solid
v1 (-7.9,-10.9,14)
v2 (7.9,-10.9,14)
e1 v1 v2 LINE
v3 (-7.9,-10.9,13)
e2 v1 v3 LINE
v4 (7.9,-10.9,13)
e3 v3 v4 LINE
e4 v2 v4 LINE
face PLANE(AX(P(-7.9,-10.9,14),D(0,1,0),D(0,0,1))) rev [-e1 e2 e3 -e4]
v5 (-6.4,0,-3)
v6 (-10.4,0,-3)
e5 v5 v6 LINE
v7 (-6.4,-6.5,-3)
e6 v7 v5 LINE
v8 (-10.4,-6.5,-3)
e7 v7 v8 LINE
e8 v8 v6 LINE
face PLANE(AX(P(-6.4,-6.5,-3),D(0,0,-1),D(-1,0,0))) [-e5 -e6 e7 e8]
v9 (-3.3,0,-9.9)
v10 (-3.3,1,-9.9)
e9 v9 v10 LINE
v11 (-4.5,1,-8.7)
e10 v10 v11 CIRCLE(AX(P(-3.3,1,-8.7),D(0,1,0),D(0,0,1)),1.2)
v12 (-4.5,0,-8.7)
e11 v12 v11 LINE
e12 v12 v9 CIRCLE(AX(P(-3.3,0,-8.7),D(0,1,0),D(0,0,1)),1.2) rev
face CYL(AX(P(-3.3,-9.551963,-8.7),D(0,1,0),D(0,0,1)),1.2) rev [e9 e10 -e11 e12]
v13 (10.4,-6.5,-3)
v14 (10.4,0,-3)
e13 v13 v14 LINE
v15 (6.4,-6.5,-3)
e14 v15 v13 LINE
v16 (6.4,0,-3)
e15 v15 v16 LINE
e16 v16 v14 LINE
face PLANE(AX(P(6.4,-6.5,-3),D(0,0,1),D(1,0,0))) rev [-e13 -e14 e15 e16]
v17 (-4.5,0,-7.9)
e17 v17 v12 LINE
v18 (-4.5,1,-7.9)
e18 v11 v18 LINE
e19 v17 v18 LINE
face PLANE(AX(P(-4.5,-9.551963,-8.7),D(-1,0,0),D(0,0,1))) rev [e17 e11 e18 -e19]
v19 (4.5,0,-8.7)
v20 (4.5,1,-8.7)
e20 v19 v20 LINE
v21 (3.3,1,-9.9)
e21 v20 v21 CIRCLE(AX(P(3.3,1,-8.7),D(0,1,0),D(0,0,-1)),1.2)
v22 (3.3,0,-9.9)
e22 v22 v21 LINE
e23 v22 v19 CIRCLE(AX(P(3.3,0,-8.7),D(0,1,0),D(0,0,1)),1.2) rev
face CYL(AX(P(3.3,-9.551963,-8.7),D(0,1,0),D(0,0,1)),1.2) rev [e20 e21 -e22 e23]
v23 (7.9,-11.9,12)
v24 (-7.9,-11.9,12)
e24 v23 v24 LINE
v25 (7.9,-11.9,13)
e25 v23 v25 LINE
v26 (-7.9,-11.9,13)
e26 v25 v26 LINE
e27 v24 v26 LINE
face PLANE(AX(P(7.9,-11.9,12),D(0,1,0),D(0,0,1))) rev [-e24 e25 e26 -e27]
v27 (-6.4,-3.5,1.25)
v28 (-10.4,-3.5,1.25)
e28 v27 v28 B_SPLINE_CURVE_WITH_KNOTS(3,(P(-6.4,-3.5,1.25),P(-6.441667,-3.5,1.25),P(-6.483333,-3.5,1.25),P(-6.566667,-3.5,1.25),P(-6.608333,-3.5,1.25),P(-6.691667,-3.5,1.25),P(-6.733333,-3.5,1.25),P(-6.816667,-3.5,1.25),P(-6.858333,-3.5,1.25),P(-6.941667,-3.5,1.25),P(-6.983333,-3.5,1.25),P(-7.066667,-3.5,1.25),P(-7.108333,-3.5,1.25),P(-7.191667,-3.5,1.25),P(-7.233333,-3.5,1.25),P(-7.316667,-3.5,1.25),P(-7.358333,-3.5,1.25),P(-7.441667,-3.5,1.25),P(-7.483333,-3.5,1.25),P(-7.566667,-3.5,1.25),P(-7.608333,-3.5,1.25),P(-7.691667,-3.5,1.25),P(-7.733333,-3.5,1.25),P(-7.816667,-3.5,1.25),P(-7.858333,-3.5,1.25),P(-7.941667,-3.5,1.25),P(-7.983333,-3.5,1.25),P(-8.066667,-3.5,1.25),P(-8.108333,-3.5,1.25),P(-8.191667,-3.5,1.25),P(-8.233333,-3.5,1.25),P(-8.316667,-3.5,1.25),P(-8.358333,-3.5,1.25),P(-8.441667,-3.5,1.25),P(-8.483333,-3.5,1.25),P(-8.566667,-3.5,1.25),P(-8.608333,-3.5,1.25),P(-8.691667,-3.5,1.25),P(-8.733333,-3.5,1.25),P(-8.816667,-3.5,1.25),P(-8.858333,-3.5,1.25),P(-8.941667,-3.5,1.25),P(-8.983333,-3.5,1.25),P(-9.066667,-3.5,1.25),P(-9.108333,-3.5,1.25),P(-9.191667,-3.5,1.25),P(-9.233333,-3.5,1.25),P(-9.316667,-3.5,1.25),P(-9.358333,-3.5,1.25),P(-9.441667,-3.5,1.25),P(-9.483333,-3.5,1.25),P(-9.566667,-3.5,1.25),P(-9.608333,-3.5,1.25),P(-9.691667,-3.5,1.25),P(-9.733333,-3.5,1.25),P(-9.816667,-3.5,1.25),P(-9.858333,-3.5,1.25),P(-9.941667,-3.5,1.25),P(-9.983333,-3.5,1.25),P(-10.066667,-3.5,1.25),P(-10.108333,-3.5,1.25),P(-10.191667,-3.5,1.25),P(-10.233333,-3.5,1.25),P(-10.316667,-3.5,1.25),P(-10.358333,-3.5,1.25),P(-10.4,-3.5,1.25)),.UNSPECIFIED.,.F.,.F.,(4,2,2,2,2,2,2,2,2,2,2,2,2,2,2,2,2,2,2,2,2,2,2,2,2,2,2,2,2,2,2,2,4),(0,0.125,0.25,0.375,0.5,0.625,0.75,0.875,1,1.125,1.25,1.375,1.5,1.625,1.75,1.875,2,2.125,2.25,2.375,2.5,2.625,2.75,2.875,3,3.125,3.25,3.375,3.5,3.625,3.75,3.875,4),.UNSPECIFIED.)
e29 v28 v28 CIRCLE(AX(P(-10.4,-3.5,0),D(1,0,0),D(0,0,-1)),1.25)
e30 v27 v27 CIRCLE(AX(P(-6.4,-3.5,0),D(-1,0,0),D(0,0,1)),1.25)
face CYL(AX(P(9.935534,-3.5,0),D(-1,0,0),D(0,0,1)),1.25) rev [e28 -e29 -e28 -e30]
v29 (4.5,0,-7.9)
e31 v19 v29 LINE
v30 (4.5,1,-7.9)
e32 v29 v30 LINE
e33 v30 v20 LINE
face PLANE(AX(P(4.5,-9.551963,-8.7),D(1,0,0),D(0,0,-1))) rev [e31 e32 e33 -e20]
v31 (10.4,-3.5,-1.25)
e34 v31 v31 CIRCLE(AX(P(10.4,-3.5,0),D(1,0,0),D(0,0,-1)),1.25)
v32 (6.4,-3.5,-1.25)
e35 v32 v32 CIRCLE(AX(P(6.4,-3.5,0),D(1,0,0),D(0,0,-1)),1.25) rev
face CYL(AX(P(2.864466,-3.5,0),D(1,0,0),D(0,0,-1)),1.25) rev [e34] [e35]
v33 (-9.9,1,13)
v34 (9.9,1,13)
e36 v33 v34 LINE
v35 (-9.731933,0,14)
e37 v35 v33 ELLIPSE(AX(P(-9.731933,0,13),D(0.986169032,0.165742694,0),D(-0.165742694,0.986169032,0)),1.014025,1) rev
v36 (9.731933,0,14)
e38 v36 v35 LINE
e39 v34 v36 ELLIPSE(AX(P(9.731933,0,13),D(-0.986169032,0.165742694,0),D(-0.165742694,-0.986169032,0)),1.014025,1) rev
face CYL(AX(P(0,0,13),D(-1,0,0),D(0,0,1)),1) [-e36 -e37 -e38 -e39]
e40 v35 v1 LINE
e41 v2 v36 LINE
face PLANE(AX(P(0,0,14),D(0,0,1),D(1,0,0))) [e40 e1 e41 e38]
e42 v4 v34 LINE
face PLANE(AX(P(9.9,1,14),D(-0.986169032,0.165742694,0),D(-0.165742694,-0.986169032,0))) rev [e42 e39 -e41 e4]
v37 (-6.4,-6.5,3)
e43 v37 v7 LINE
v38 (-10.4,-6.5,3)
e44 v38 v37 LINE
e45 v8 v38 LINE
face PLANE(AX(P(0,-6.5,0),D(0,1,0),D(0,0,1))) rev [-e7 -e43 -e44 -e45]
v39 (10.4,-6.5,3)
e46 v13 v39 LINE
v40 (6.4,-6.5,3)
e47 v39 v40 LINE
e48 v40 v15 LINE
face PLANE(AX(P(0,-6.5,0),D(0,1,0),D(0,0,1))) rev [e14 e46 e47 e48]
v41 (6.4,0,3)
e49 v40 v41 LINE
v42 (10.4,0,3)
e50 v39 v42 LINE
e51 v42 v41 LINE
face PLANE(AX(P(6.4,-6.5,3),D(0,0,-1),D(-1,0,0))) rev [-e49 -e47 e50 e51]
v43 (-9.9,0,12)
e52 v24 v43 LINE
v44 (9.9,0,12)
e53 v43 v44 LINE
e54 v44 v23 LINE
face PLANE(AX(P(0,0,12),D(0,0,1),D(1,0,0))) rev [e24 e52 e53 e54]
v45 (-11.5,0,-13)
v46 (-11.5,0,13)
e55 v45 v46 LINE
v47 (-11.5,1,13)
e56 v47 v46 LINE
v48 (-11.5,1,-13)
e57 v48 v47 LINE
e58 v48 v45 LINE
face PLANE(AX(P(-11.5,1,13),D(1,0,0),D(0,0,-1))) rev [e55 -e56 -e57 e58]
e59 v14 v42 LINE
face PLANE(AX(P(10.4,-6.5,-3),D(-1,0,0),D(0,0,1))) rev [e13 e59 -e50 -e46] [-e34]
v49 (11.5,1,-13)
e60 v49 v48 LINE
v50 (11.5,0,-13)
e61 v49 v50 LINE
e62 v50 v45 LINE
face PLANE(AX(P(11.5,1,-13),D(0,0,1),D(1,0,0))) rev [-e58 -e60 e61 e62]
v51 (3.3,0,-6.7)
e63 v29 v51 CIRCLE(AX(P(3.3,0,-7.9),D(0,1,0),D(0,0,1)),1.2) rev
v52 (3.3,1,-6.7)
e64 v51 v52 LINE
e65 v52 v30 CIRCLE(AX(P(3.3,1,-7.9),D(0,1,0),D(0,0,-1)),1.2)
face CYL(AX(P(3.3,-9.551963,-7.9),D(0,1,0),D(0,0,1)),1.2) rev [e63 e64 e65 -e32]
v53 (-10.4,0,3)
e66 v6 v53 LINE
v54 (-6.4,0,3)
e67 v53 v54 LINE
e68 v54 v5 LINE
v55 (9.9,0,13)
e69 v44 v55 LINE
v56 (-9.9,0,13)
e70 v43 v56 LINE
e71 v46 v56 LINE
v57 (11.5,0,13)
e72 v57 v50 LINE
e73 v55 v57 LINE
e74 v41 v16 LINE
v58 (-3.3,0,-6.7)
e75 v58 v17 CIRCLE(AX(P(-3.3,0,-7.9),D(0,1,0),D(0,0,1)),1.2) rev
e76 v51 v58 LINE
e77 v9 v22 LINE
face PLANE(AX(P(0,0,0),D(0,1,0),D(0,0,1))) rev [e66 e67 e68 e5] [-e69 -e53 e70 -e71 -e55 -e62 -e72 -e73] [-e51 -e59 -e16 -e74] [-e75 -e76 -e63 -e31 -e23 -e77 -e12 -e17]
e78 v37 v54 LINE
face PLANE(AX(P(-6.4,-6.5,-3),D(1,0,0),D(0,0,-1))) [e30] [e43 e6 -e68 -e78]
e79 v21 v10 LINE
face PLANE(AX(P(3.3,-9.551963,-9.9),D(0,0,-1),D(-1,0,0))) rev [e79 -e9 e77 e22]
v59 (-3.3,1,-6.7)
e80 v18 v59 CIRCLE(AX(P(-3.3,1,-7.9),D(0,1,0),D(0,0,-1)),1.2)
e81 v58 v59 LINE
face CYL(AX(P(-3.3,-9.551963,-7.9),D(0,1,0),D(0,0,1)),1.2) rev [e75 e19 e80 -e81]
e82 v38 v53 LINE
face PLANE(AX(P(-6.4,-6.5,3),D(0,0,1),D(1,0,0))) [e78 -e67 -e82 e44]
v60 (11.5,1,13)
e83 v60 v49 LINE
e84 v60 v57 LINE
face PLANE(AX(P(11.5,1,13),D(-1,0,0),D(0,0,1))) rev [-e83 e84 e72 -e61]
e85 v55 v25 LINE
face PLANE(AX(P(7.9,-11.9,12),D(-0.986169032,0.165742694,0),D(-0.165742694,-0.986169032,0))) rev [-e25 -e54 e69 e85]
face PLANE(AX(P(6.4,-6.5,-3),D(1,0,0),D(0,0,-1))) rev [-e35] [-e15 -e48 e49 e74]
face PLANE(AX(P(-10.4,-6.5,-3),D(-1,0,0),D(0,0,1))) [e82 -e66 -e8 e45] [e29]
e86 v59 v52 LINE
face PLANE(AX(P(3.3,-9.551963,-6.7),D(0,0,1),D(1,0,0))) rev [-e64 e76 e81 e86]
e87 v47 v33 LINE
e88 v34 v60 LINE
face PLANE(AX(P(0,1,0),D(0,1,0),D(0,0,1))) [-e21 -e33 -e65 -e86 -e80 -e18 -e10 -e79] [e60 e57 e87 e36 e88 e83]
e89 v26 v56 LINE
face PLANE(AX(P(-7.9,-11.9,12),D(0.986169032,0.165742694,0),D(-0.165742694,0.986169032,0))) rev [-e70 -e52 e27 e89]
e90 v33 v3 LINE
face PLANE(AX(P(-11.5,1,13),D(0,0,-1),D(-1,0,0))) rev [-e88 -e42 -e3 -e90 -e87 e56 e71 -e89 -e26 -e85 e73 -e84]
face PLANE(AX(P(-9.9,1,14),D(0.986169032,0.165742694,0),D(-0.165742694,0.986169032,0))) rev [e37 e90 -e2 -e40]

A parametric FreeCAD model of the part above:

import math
import FreeCAD as App
import Part
import Sketcher
Q = App.Units.Quantity


def edges_at(feature, points):
    """Names of the edges that pass closest to the given points."""
    edges = feature.Shape.Edges
    near = lambda p: min(range(len(edges)), key=lambda i: edges[i].distToShape(Part.Vertex(*p))[0])
    return sorted({f"Edge{near(p) + 1}" for p in points})


def add_polygon(sketch, points):
    """Adds a closed chain of lines whose ends are joined by coincident constraints."""
    first, n = sketch.GeometryCount, len(points)
    for a, b in zip(points, points[1:] + points[:1]):
        sketch.addGeometry(Part.LineSegment(App.Vector(*a, 0), App.Vector(*b, 0)), False)
    for i in range(n):
        sketch.addConstraint(Sketcher.Constraint("Coincident", first + i, 2, first + (i + 1) % n, 1))

doc = App.newDocument("Part")
body = doc.addObject("PartDesign::Body", "Body")

# Sketch on XZ plane
sketch1 = doc.addObject("Sketcher::SketchObject", "Sketch")
body.addObject(sketch1)
sketch1.AttachmentSupport = (doc.XZ_Plane, [""])
sketch1.MapMode = "FlatFace"
add_polygon(sketch1, [(-12, -13), (-12, 13), (12, 13), (12, -13)])  # lines 0-3
sketch1.addConstraint(Sketcher.Constraint("Vertical", 0))
sketch1.addConstraint(Sketcher.Constraint("Horizontal", 1))
sketch1.addConstraint(Sketcher.Constraint("Vertical", 2))
sketch1.addConstraint(Sketcher.Constraint("Horizontal", 3))
sketch1.addConstraint(Sketcher.Constraint("Symmetric", 0, 2, 2, 2, -1, 1))
sketch1.addConstraint(Sketcher.Constraint("DistanceX", 1, 1, 1, 2, Q("23 mm")))
sketch1.addConstraint(Sketcher.Constraint("DistanceY", 0, 1, 0, 2, Q("26 mm")))
pad1 = doc.addObject("PartDesign::Pad", "Pad")
body.addObject(pad1)
pad1.Profile = sketch1
pad1.Length = 1
pad1.Reversed = True

# Sketch on XZ plane
sketch2 = doc.addObject("Sketcher::SketchObject", "Sketch001")
body.addObject(sketch2)
sketch2.AttachmentSupport = (doc.XZ_Plane, [""])
sketch2.MapMode = "FlatFace"
add_polygon(sketch2, [(6.4, 3), (6.4, -3), (10.4, -3), (10.4, 3)])  # lines 0-3
sketch2.addConstraint(Sketcher.Constraint("Vertical", 0))
sketch2.addConstraint(Sketcher.Constraint("Horizontal", 1))
sketch2.addConstraint(Sketcher.Constraint("Vertical", 2))
sketch2.addConstraint(Sketcher.Constraint("Horizontal", 3))
sketch2.addConstraint(Sketcher.Constraint("DistanceX", 1, 1, 1, 2, Q("4 mm")))
sketch2.addConstraint(Sketcher.Constraint("DistanceY", 0, 2, 0, 1, Q("6 mm")))
sketch2.addConstraint(Sketcher.Constraint("DistanceY", 0, 2, -1, 1, Q("3 mm")))
sketch2.addConstraint(Sketcher.Constraint("DistanceX", -1, 1, 0, 2, Q("6.4 mm")))
pad2 = doc.addObject("PartDesign::Pad", "Pad001")
body.addObject(pad2)
pad2.Profile = sketch2
pad2.Length = 6.5

# Sketch on YZ plane
sketch3 = doc.addObject("Sketcher::SketchObject", "Sketch002")
body.addObject(sketch3)
sketch3.AttachmentSupport = (doc.YZ_Plane, [""])
sketch3.MapMode = "FlatFace"
sketch3.AttachmentOffset = App.Placement(App.Vector(0, 0, 10.4), App.Rotation())
sketch3.addGeometry(Part.Circle(App.Vector(-3.5, 0, 0), App.Vector(0, 0, 1), 1.2), False)
sketch3.addConstraint(Sketcher.Constraint("PointOnObject", 0, 3, -1))
sketch3.addConstraint(Sketcher.Constraint("Diameter", 0, Q("2.5 mm")))
sketch3.addConstraint(Sketcher.Constraint("DistanceX", 0, 3, -1, 1, Q("3.5 mm")))
pocket1 = doc.addObject("PartDesign::Pocket", "Pocket")
body.addObject(pocket1)
pocket1.Profile = sketch3
pocket1.Length = 4
doc.recompute()

mirrored = doc.addObject("PartDesign::Mirrored", "Mirrored")
body.addObject(mirrored)
mirrored.Originals = [pad2, pocket1]
mirrored.MirrorPlane = (doc.YZ_Plane, [""])
body.Tip = mirrored

# Sketch on XY plane
sketch4 = doc.addObject("Sketcher::SketchObject", "Sketch003")
body.addObject(sketch4)
sketch4.AttachmentSupport = (doc.XY_Plane, [""])
sketch4.MapMode = "FlatFace"
sketch4.AttachmentOffset = App.Placement(App.Vector(0, 0, 13), App.Rotation())
add_polygon(sketch4, [(10, 1), (-10, 1), (-8, -11), (8, -11)])  # lines 0-3
sketch4.addConstraint(Sketcher.Constraint("Horizontal", 0))
sketch4.addConstraint(Sketcher.Constraint("Horizontal", 2))
sketch4.addConstraint(Sketcher.Constraint("Equal", 1, 3))
sketch4.addConstraint(Sketcher.Constraint("DistanceX", 0, 2, 0, 1, Q("19.8 mm")))
sketch4.addConstraint(Sketcher.Constraint("DistanceX", 2, 1, 2, 2, Q("15.8 mm")))
sketch4.addConstraint(Sketcher.Constraint("DistanceY", -1, 1, 0, 2, Q("1 mm")))
sketch4.addConstraint(Sketcher.Constraint("DistanceX", 0, 2, -1, 1, Q("9.9 mm")))
sketch4.addConstraint(Sketcher.Constraint("DistanceY", 1, 2, -1, 1, Q("10.9 mm")))
pad3 = doc.addObject("PartDesign::Pad", "Pad002")
body.addObject(pad3)
pad3.Profile = sketch4
pad3.Length = 1

# Sketch on XY plane
sketch5 = doc.addObject("Sketcher::SketchObject", "Sketch004")
body.addObject(sketch5)
sketch5.AttachmentSupport = (doc.XY_Plane, [""])
sketch5.MapMode = "FlatFace"
sketch5.AttachmentOffset = App.Placement(App.Vector(0, 0, 13), App.Rotation())
add_polygon(sketch5, [(8, -12), (-8, -12), (-10, 0), (10, 0)])  # lines 0-3
sketch5.addConstraint(Sketcher.Constraint("Horizontal", 0))
sketch5.addConstraint(Sketcher.Constraint("Horizontal", 2))
sketch5.addConstraint(Sketcher.Constraint("Symmetric", 1, 2, 2, 2, -1, 1))
sketch5.addConstraint(Sketcher.Constraint("Equal", 1, 3))
sketch5.addConstraint(Sketcher.Constraint("DistanceX", 0, 2, 0, 1, Q("15.8 mm")))
sketch5.addConstraint(Sketcher.Constraint("DistanceX", 2, 1, 2, 2, Q("19.8 mm")))
sketch5.addConstraint(Sketcher.Constraint("DistanceY", 0, 2, -1, 1, Q("11.9 mm")))
pad4 = doc.addObject("PartDesign::Pad", "Pad003")
body.addObject(pad4)
pad4.Profile = sketch5
pad4.Length = 1
pad4.Reversed = True

# Sketch on XZ plane
sketch6 = doc.addObject("Sketcher::SketchObject", "Sketch005")
body.addObject(sketch6)
sketch6.AttachmentSupport = (doc.XZ_Plane, [""])
sketch6.MapMode = "FlatFace"
sketch6.AttachmentOffset = App.Placement(App.Vector(0, 0, -1), App.Rotation())
sketch6.addGeometry(Part.LineSegment(App.Vector(3.3, -9.9, 0), App.Vector(-3.3, -9.9, 0)), False)
sketch6.addGeometry(Part.ArcOfCircle(Part.Circle(App.Vector(-3.3, -8.7, 0), App.Vector(0, 0, 1), 1.2), math.radians(-180), math.radians(-90)), False)
sketch6.addGeometry(Part.LineSegment(App.Vector(-4.5, -8.7, 0), App.Vector(-4.5, -7.9, 0)), False)
sketch6.addGeometry(Part.ArcOfCircle(Part.Circle(App.Vector(-3.3, -7.9, 0), App.Vector(0, 0, 1), 1.2), math.radians(90), math.radians(180)), False)
sketch6.addGeometry(Part.LineSegment(App.Vector(-3.3, -6.7, 0), App.Vector(3.3, -6.7, 0)), False)
sketch6.addGeometry(Part.ArcOfCircle(Part.Circle(App.Vector(3.3, -7.9, 0), App.Vector(0, 0, 1), 1.2), math.radians(0), math.radians(90)), False)
sketch6.addGeometry(Part.LineSegment(App.Vector(4.5, -7.9, 0), App.Vector(4.5, -8.7, 0)), False)
sketch6.addGeometry(Part.ArcOfCircle(Part.Circle(App.Vector(3.3, -8.7, 0), App.Vector(0, 0, 1), 1.2), math.radians(-90), math.radians(0)), False)
sketch6.addConstraint(Sketcher.Constraint("Tangent", 0, 2, 1, 2))
sketch6.addConstraint(Sketcher.Constraint("Tangent", 1, 1, 2, 1))
sketch6.addConstraint(Sketcher.Constraint("Tangent", 2, 2, 3, 2))
sketch6.addConstraint(Sketcher.Constraint("Tangent", 3, 1, 4, 1))
sketch6.addConstraint(Sketcher.Constraint("Tangent", 4, 2, 5, 2))
sketch6.addConstraint(Sketcher.Constraint("Tangent", 5, 1, 6, 1))
sketch6.addConstraint(Sketcher.Constraint("Tangent", 6, 2, 7, 2))
sketch6.addConstraint(Sketcher.Constraint("Tangent", 7, 1, 0, 1))
sketch6.addConstraint(Sketcher.Constraint("Horizontal", 0))
sketch6.addConstraint(Sketcher.Constraint("Vertical", 2))
sketch6.addConstraint(Sketcher.Constraint("Horizontal", 4))
sketch6.addConstraint(Sketcher.Constraint("Vertical", 6))
sketch6.addConstraint(Sketcher.Constraint("Equal", 1, 3))
sketch6.addConstraint(Sketcher.Constraint("Equal", 3, 5))
sketch6.addConstraint(Sketcher.Constraint("Equal", 5, 7))
sketch6.addConstraint(Sketcher.Constraint("Radius", 1, Q("1.2 mm")))
sketch6.addConstraint(Sketcher.Constraint("DistanceX", 0, 2, 0, 1, Q("6.6 mm")))
sketch6.addConstraint(Sketcher.Constraint("DistanceY", 2, 1, 2, 2, Q("0.8 mm")))
sketch6.addConstraint(Sketcher.Constraint("DistanceX", 1, 3, -1, 1, Q("3.3 mm")))
sketch6.addConstraint(Sketcher.Constraint("DistanceY", 1, 3, -1, 1, Q("8.7 mm")))
pocket2 = doc.addObject("PartDesign::Pocket", "Pocket001")
body.addObject(pocket2)
pocket2.Profile = sketch6
pocket2.Length = 1
pocket2.Reversed = True
doc.recompute()

fillet = doc.addObject("PartDesign::Fillet", "Fillet")
body.addObject(fillet)
fillet.Base = (pocket2, edges_at(pocket2, [(0, 1, 14)]))
fillet.Radius = 1

doc.recompute()
